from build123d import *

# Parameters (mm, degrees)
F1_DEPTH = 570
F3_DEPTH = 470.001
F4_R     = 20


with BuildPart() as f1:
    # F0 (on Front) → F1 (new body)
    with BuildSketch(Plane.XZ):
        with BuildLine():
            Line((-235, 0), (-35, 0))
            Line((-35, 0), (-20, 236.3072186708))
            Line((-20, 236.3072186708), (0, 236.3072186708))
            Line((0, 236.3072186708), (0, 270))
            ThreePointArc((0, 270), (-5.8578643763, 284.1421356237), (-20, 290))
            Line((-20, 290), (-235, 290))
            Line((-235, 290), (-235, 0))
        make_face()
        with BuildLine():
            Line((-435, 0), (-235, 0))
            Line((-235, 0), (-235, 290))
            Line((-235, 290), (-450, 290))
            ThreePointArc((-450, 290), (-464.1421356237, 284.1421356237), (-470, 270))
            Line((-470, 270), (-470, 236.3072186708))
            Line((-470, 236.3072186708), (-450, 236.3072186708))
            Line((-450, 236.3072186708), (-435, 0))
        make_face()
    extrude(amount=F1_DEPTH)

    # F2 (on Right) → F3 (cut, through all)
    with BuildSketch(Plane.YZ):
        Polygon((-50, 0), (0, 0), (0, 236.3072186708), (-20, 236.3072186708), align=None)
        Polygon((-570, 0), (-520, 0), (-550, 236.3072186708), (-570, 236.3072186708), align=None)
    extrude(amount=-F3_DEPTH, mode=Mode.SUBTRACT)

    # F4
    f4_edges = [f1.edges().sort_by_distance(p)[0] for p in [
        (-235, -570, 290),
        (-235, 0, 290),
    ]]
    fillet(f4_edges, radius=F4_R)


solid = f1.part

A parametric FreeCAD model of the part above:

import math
import FreeCAD as App
import Part
import Sketcher
Q = App.Units.Quantity


def edges_at(feature, points):
    """Names of the edges that pass closest to the given points."""
    edges = feature.Shape.Edges
    near = lambda p: min(range(len(edges)), key=lambda i: edges[i].distToShape(Part.Vertex(*p))[0])
    return sorted({f"Edge{near(p) + 1}" for p in points})

doc = App.newDocument("Part")
params = doc.addObject("Spreadsheet::Sheet", "Params")
for row, (alias, value) in enumerate([
    ("sketch1_radius", "20 mm"),
    ("sketch1_width", "430 mm"),
    ("sketch1_width2", "400 mm"),
    ("pad1_length", "570 mm"),
    ("sketch2_width", "50 mm"),
    ("sketch2_width2", "20 mm"),
    ("fillet_radius", "20 mm"),
], start=1):
    params.set(f"A{row}", alias)
    params.set(f"B{row}", "=" + value)
    params.setAlias(f"B{row}", alias)

body = doc.addObject("PartDesign::Body", "Body")

# Sketch on XZ plane
sketch1 = body.newObject("Sketcher::SketchObject", "Sketch")
sketch1.AttachmentSupport = (doc.getObject("XZ_Plane"), [""])
sketch1.MapMode = "FlatFace"
sketch1.addGeometry([
    Part.LineSegment(App.Vector(-35, 0, 0), App.Vector(-20, 236, 0)),  # 0
    Part.LineSegment(App.Vector(-20, 236, 0), App.Vector(0, 236, 0)),  # 1
    Part.LineSegment(App.Vector(0, 236, 0), App.Vector(0, 270, 0)),  # 2
    Part.ArcOfCircle(Part.Circle(App.Vector(-20, 270, 0), App.Vector(0, 0, 1), 20), math.radians(0), math.radians(90)),  # 3
    Part.LineSegment(App.Vector(-20, 290, 0), App.Vector(-450, 290, 0)),  # 4
    Part.ArcOfCircle(Part.Circle(App.Vector(-450, 270, 0), App.Vector(0, 0, 1), 20), math.radians(90), math.radians(180)),  # 5
    Part.LineSegment(App.Vector(-470, 270, 0), App.Vector(-470, 236, 0)),  # 6
    Part.LineSegment(App.Vector(-470, 236, 0), App.Vector(-450, 236, 0)),  # 7
    Part.LineSegment(App.Vector(-450, 236, 0), App.Vector(-435, 0, 0)),  # 8
    Part.LineSegment(App.Vector(-435, 0, 0), App.Vector(-35, 0, 0)),  # 9
], False)
sketch1.addConstraint([
    Sketcher.Constraint("Coincident", 0, 2, 1, 1),
    Sketcher.Constraint("Coincident", 1, 2, 2, 1),
    Sketcher.Constraint("Tangent", 2, 2, 3, 1),
    Sketcher.Constraint("Tangent", 3, 2, 4, 1),
    Sketcher.Constraint("Tangent", 4, 2, 5, 1),
    Sketcher.Constraint("Tangent", 5, 2, 6, 1),
    Sketcher.Constraint("Coincident", 6, 2, 7, 1),
    Sketcher.Constraint("Coincident", 7, 2, 8, 1),
    Sketcher.Constraint("Coincident", 8, 2, 9, 1),
    Sketcher.Constraint("Coincident", 9, 2, 0, 1),
    Sketcher.Constraint("Horizontal", 1),
    Sketcher.Constraint("Vertical", 2),
    Sketcher.Constraint("Horizontal", 4),
    Sketcher.Constraint("Vertical", 6),
    Sketcher.Constraint("Horizontal", 7),
    Sketcher.Constraint("Horizontal", 9),
    Sketcher.Constraint("Equal", 3, 5),
    Sketcher.Constraint("PointOnObject", 1, 2, -2),
    Sketcher.Constraint("PointOnObject", 8, 2, -1),
    Sketcher.Constraint("Horizontal", 1, 2, 6, 2),
    Sketcher.Constraint("Vertical", 3, 3, 0, 2),
    Sketcher.Constraint("Vertical", 4, 2, 7, 2),
    Sketcher.Constraint("Equal", 0, 8),
    Sketcher.Constraint("Radius", 3, Q("20 mm")),
    Sketcher.Constraint("DistanceX", 4, 2, 4, 1, Q("430 mm")),
    Sketcher.Constraint("DistanceX", 9, 1, 9, 2, Q("400 mm")),
    Sketcher.Constraint("DistanceY", -1, 1, 3, 3, Q("270 mm")),
    Sketcher.Constraint("DistanceY", 2, 1, 2, 2, Q("33.692781 mm")),
])
sketch1.setExpression("Constraints[23]", "Params.sketch1_radius")
sketch1.setExpression("Constraints[24]", "Params.sketch1_width")
sketch1.setExpression("Constraints[25]", "Params.sketch1_width2")
pad1 = body.newObject("PartDesign::Pad", "Pad")
pad1.Profile = sketch1
pad1.setExpression("Length", "Params.pad1_length")

# Sketch on YZ plane
sketch2 = body.newObject("Sketcher::SketchObject", "Sketch001")
sketch2.AttachmentSupport = (doc.getObject("YZ_Plane"), [""])
sketch2.MapMode = "FlatFace"
sketch2.addGeometry([
    Part.LineSegment(App.Vector(-50, 0, 0), App.Vector(0, 0, 0)),  # 0
    Part.LineSegment(App.Vector(0, 0, 0), App.Vector(0, 236, 0)),  # 1
    Part.LineSegment(App.Vector(0, 236, 0), App.Vector(-20, 236, 0)),  # 2
    Part.LineSegment(App.Vector(-20, 236, 0), App.Vector(-50, 0, 0)),  # 3
    Part.LineSegment(App.Vector(-570, 0, 0), App.Vector(-520, 0, 0)),  # 4
    Part.LineSegment(App.Vector(-520, 0, 0), App.Vector(-550, 236, 0)),  # 5
    Part.LineSegment(App.Vector(-550, 236, 0), App.Vector(-570, 236, 0)),  # 6
    Part.LineSegment(App.Vector(-570, 236, 0), App.Vector(-570, 0, 0)),  # 7
], False)
sketch2.addConstraint([
    Sketcher.Constraint("Coincident", 0, 2, 1, 1),
    Sketcher.Constraint("Coincident", 1, 2, 2, 1),
    Sketcher.Constraint("Coincident", 2, 2, 3, 1),
    Sketcher.Constraint("Coincident", 3, 2, 0, 1),
    Sketcher.Constraint("Coincident", 4, 2, 5, 1),
    Sketcher.Constraint("Coincident", 5, 2, 6, 1),
    Sketcher.Constraint("Coincident", 6, 2, 7, 1),
    Sketcher.Constraint("Coincident", 7, 2, 4, 1),
    Sketcher.Constraint("Horizontal", 0),
    Sketcher.Constraint("Vertical", 1),
    Sketcher.Constraint("Horizontal", 2),
    Sketcher.Constraint("Horizontal", 4),
    Sketcher.Constraint("Horizontal", 6),
    Sketcher.Constraint("Vertical", 7),
    Sketcher.Constraint("Coincident", 0, 2, -1, 1),
    Sketcher.Constraint("PointOnObject", 4, 2, -1),
    Sketcher.Constraint("Horizontal", 2, 2, 5, 2),
    Sketcher.Constraint("Equal", 0, 4),
    Sketcher.Constraint("Equal", 2, 6),
    Sketcher.Constraint("DistanceX", 0, 1, 0, 2, Q("50 mm")),
    Sketcher.Constraint("DistanceX", 2, 2, 2, 1, Q("20 mm")),
    Sketcher.Constraint("DistanceX", 4, 2, -1, 1, Q("520 mm")),
    Sketcher.Constraint("DistanceY", 1, 1, 1, 2, Q("236.307219 mm")),
])
sketch2.setExpression("Constraints[19]", "Params.sketch2_width")
sketch2.setExpression("Constraints[20]", "Params.sketch2_width2")
pocket1 = body.newObject("PartDesign::Pocket", "Pocket")
pocket1.Profile = sketch2
pocket1.Type = "ThroughAll"
doc.recompute()

fillet = body.newObject("PartDesign::Fillet", "Fillet")
fillet.Base = (pocket1, edges_at(pocket1, [(-235, -570, 290), (-235, 0, 290)]))
fillet.setExpression("Radius", "Params.fillet_radius")

doc.recompute()
